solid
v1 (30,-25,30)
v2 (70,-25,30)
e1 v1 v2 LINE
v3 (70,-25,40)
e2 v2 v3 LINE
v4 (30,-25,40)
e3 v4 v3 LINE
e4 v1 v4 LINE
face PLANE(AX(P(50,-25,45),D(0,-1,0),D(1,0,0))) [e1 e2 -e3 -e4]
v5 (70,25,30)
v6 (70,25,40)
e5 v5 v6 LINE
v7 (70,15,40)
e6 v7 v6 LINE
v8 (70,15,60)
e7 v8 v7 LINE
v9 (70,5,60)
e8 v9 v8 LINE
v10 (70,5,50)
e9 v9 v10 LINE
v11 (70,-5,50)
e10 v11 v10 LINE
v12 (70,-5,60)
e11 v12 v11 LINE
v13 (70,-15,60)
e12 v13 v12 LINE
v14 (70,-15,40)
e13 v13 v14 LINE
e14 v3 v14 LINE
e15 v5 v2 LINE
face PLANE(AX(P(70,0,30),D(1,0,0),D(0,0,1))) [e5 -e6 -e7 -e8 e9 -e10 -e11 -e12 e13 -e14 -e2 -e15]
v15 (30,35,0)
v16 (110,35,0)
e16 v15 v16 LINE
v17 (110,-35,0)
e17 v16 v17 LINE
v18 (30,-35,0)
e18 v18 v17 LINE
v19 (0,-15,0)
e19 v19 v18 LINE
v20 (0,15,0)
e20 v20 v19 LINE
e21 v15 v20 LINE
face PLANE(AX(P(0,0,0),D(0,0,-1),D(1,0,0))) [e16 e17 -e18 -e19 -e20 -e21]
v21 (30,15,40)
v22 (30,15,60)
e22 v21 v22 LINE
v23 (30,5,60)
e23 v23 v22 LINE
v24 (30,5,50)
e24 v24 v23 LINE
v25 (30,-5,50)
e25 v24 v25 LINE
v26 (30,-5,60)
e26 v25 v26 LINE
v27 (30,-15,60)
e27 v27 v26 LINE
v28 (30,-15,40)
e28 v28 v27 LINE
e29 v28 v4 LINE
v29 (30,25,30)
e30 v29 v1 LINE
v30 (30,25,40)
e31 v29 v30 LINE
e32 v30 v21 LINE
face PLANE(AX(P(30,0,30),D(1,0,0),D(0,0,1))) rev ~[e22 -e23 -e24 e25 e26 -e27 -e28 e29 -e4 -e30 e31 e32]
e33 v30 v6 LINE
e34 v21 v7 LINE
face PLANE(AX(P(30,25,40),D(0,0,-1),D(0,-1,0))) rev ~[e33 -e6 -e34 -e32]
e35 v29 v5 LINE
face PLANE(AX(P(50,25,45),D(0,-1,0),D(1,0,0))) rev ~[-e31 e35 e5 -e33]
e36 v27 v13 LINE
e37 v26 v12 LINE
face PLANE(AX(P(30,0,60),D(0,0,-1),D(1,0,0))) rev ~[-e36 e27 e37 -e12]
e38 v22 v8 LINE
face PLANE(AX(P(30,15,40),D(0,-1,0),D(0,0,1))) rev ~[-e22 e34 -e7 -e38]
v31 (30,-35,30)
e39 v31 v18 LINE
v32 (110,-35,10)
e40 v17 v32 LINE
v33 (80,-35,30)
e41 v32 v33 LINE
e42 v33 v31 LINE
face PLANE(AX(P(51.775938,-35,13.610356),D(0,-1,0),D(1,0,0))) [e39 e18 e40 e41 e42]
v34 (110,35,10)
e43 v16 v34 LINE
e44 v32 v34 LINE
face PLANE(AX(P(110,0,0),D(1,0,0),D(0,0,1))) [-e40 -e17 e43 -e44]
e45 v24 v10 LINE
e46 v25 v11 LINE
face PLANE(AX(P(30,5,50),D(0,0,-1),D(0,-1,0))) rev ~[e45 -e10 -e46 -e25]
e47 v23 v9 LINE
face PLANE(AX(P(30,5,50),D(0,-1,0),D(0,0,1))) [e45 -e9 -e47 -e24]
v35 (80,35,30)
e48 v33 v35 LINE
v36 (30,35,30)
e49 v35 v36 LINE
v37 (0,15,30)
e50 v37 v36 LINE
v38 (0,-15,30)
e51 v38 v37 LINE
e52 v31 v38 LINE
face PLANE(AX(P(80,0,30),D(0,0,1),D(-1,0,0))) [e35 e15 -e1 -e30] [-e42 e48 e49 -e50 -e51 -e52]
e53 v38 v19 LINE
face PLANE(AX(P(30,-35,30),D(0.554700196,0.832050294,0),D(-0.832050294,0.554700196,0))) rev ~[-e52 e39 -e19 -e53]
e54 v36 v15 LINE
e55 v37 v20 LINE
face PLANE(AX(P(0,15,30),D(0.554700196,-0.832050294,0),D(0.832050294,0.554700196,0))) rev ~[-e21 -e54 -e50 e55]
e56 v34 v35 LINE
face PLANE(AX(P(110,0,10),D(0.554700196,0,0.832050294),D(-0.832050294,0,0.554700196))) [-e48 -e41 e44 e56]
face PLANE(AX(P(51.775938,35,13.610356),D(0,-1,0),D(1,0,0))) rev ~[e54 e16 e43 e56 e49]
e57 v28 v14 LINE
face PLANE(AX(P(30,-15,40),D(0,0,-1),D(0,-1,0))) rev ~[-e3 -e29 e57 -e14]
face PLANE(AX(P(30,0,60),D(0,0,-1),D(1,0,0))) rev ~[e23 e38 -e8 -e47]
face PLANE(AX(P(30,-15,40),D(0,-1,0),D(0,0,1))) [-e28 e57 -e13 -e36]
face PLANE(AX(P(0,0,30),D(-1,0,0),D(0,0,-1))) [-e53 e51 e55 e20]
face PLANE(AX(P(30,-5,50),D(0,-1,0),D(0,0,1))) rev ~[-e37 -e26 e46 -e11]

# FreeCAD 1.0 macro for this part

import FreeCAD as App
import Part
import Sketcher

doc = App.newDocument("Part")
params = doc.addObject("Spreadsheet::Sheet", "Params")
for row, (alias, value) in enumerate([
    ("sketch1_width", "110 mm"),
    ("sketch1_width2", "80 mm"),
    ("sketch1_height", "30 mm"),
    ("sketch1_height2", "10 mm"),
    ("pad1_length", "70 mm"),
    ("sketch2_width", "40 mm"),
    ("sketch2_height", "30 mm"),
    ("pad2_length", "50 mm"),
    ("sketch3_width", "30 mm"),
    ("sketch3_height", "20 mm"),
    ("sketch4_width", "10 mm"),
    ("sketch4_height", "20 mm"),
    ("sketch5_width", "10 mm"),
], start=1):
    params.set(f"A{row}", alias)
    params.set(f"B{row}", "=" + value)
    params.setAlias(f"B{row}", alias)

body = doc.addObject("PartDesign::Body", "Body")

# Sketch on XZ plane
sketch1 = body.newObject("Sketcher::SketchObject", "Sketch")
sketch1.AttachmentSupport = (doc.getObject("XZ_Plane"), [""])
sketch1.MapMode = "FlatFace"
sketch1.addGeometry([
    Part.LineSegment(App.Vector(0, 30, 0), App.Vector(0, 0, 0)),  # 0
    Part.LineSegment(App.Vector(0, 0, 0), App.Vector(110, 0, 0)),  # 1
    Part.LineSegment(App.Vector(110, 0, 0), App.Vector(110, 10, 0)),  # 2
    Part.LineSegment(App.Vector(110, 10, 0), App.Vector(80, 30, 0)),  # 3
    Part.LineSegment(App.Vector(80, 30, 0), App.Vector(0, 30, 0)),  # 4
], False)
sketch1.addConstraint([
    Sketcher.Constraint("Coincident", 0, 2, 1, 1),
    Sketcher.Constraint("Coincident", 1, 2, 2, 1),
    Sketcher.Constraint("Coincident", 2, 2, 3, 1),
    Sketcher.Constraint("Coincident", 3, 2, 4, 1),
    Sketcher.Constraint("Coincident", 4, 2, 0, 1),
    Sketcher.Constraint("Vertical", 0),
    Sketcher.Constraint("Horizontal", 1),
    Sketcher.Constraint("Vertical", 2),
    Sketcher.Constraint("Horizontal", 4),
    Sketcher.Constraint("Coincident", 0, 2, -1, 1),
    Sketcher.Constraint("DistanceX", 1, 1, 1, 2, 110.0),
    Sketcher.Constraint("DistanceX", 4, 2, 4, 1, 80.0),
    Sketcher.Constraint("DistanceY", 0, 2, 0, 1, 30.0),
    Sketcher.Constraint("DistanceY", 2, 1, 2, 2, 10.0),
])
sketch1.setExpression("Constraints[10]", "Params.sketch1_width")
sketch1.setExpression("Constraints[11]", "Params.sketch1_width2")
sketch1.setExpression("Constraints[12]", "Params.sketch1_height")
sketch1.setExpression("Constraints[13]", "Params.sketch1_height2")
pad1 = body.newObject("PartDesign::Pad", "Pad")
pad1.Profile = sketch1
pad1.setExpression("Length", "Params.pad1_length")
pad1.Midplane = True

# Sketch on XZ plane
sketch2 = body.newObject("Sketcher::SketchObject", "Sketch001")
sketch2.AttachmentSupport = (doc.getObject("XZ_Plane"), [""])
sketch2.MapMode = "FlatFace"
sketch2.addGeometry([
    Part.LineSegment(App.Vector(30, 60, 0), App.Vector(30, 30, 0)),
    Part.LineSegment(App.Vector(30, 30, 0), App.Vector(70, 30, 0)),
    Part.LineSegment(App.Vector(70, 30, 0), App.Vector(70, 60, 0)),
    Part.LineSegment(App.Vector(70, 60, 0), App.Vector(30, 60, 0)),
], False)
sketch2.addConstraint([
    Sketcher.Constraint("Coincident", 0, 2, 1, 1),
    Sketcher.Constraint("Coincident", 1, 2, 2, 1),
    Sketcher.Constraint("Coincident", 2, 2, 3, 1),
    Sketcher.Constraint("Coincident", 3, 2, 0, 1),
    Sketcher.Constraint("Vertical", 0),
    Sketcher.Constraint("Horizontal", 1),
    Sketcher.Constraint("Vertical", 2),
    Sketcher.Constraint("Horizontal", 3),
    Sketcher.Constraint("DistanceX", 1, 1, 1, 2, 40.0),
    Sketcher.Constraint("DistanceY", 0, 2, 0, 1, 30.0),
    Sketcher.Constraint("DistanceX", -1, 1, 0, 2, 30.0),
    Sketcher.Constraint("DistanceY", -1, 1, 0, 2, 30.0),
])
sketch2.setExpression("Constraints[8]", "Params.sketch2_width")
sketch2.setExpression("Constraints[9]", "Params.sketch2_height")
pad2 = body.newObject("PartDesign::Pad", "Pad001")
pad2.Profile = sketch2
pad2.setExpression("Length", "Params.pad2_length")
pad2.Midplane = True

# Sketch on XY plane
sketch3 = body.newObject("Sketcher::SketchObject", "Sketch002")
sketch3.AttachmentSupport = (doc.getObject("XY_Plane"), [""])
sketch3.MapMode = "FlatFace"
sketch3.AttachmentOffset = App.Placement(App.Vector(0, 0, 30), App.Rotation())
sketch3.addGeometry([
    Part.LineSegment(App.Vector(0, -35, 0), App.Vector(30, -35, 0)),  # 0
    Part.LineSegment(App.Vector(30, -35, 0), App.Vector(0, -15, 0)),  # 1
    Part.LineSegment(App.Vector(0, -15, 0), App.Vector(0, -35, 0)),  # 2
    Part.LineSegment(App.Vector(0, 15, 0), App.Vector(30, 35, 0)),  # 3
    Part.LineSegment(App.Vector(30, 35, 0), App.Vector(0, 35, 0)),  # 4
    Part.LineSegment(App.Vector(0, 35, 0), App.Vector(0, 15, 0)),  # 5
], False)
sketch3.addConstraint([
    Sketcher.Constraint("Coincident", 0, 2, 1, 1),
    Sketcher.Constraint("Coincident", 1, 2, 2, 1),
    Sketcher.Constraint("Coincident", 2, 2, 0, 1),
    Sketcher.Constraint("Coincident", 3, 2, 4, 1),
    Sketcher.Constraint("Coincident", 4, 2, 5, 1),
    Sketcher.Constraint("Coincident", 5, 2, 3, 1),
    Sketcher.Constraint("Horizontal", 0),
    Sketcher.Constraint("Vertical", 2),
    Sketcher.Constraint("Horizontal", 4),
    Sketcher.Constraint("Vertical", 5),
    Sketcher.Constraint("Symmetric", 2, 2, 4, 2, -1, 1),
    Sketcher.Constraint("Symmetric", 1, 2, 5, 2, -1),
    Sketcher.Constraint("Vertical", 0, 2, 3, 2),
    Sketcher.Constraint("DistanceX", 0, 1, 0, 2, 30.0),
    Sketcher.Constraint("DistanceY", 2, 2, 2, 1, 20.0),
    Sketcher.Constraint("DistanceY", 0, 2, -1, 1, 35.0),
])
sketch3.setExpression("Constraints[13]", "Params.sketch3_width")
sketch3.setExpression("Constraints[14]", "Params.sketch3_height")
pocket1 = body.newObject("PartDesign::Pocket", "Pocket")
pocket1.Profile = sketch3
pocket1.Type = "ThroughAll"

# Sketch on YZ plane
sketch4 = body.newObject("Sketcher::SketchObject", "Sketch003")
sketch4.AttachmentSupport = (doc.getObject("YZ_Plane"), [""])
sketch4.MapMode = "FlatFace"
sketch4.AttachmentOffset = App.Placement(App.Vector(0, 0, 30), App.Rotation())
sketch4.addGeometry([
    Part.LineSegment(App.Vector(25, 60, 0), App.Vector(25, 40, 0)),  # 0
    Part.LineSegment(App.Vector(25, 40, 0), App.Vector(15, 40, 0)),  # 1
    Part.LineSegment(App.Vector(15, 40, 0), App.Vector(15, 60, 0)),  # 2
    Part.LineSegment(App.Vector(15, 60, 0), App.Vector(25, 60, 0)),  # 3
    Part.LineSegment(App.Vector(-15, 60, 0), App.Vector(-15, 40, 0)),  # 4
    Part.LineSegment(App.Vector(-15, 40, 0), App.Vector(-25, 40, 0)),  # 5
    Part.LineSegment(App.Vector(-25, 40, 0), App.Vector(-25, 60, 0)),  # 6
    Part.LineSegment(App.Vector(-25, 60, 0), App.Vector(-15, 60, 0)),  # 7
], False)
sketch4.addConstraint([
    Sketcher.Constraint("Coincident", 0, 2, 1, 1),
    Sketcher.Constraint("Coincident", 1, 2, 2, 1),
    Sketcher.Constraint("Coincident", 2, 2, 3, 1),
    Sketcher.Constraint("Coincident", 3, 2, 0, 1),
    Sketcher.Constraint("Coincident", 4, 2, 5, 1),
    Sketcher.Constraint("Coincident", 5, 2, 6, 1),
    Sketcher.Constraint("Coincident", 6, 2, 7, 1),
    Sketcher.Constraint("Coincident", 7, 2, 4, 1),
    Sketcher.Constraint("Vertical", 0),
    Sketcher.Constraint("Horizontal", 1),
    Sketcher.Constraint("Vertical", 2),
    Sketcher.Constraint("Horizontal", 3),
    Sketcher.Constraint("Vertical", 4),
    Sketcher.Constraint("Horizontal", 5),
    Sketcher.Constraint("Vertical", 6),
    Sketcher.Constraint("Horizontal", 7),
    Sketcher.Constraint("Symmetric", 1, 2, 4, 2, -2),
    Sketcher.Constraint("Symmetric", 3, 2, 6, 2, -2),
    Sketcher.Constraint("DistanceX", 1, 2, 1, 1, 10.0),
    Sketcher.Constraint("DistanceY", 0, 2, 0, 1, 20.0),
    Sketcher.Constraint("DistanceX", -1, 1, 0, 2, 25.0),
    Sketcher.Constraint("DistanceY", -1, 1, 0, 2, 40.0),
])
sketch4.setExpression("Constraints[18]", "Params.sketch4_width")
sketch4.setExpression("Constraints[19]", "Params.sketch4_height")
pocket2 = body.newObject("PartDesign::Pocket", "Pocket001")
pocket2.Profile = sketch4
pocket2.Type = "ThroughAll"
pocket2.Reversed = True

# Sketch on YZ plane
sketch5 = body.newObject("Sketcher::SketchObject", "Sketch004")
sketch5.AttachmentSupport = (doc.getObject("YZ_Plane"), [""])
sketch5.MapMode = "FlatFace"
sketch5.AttachmentOffset = App.Placement(App.Vector(0, 0, 30), App.Rotation())
sketch5.addGeometry([
    Part.LineSegment(App.Vector(5, 60, 0), App.Vector(5, 50, 0)),
    Part.LineSegment(App.Vector(5, 50, 0), App.Vector(-5, 50, 0)),
    Part.LineSegment(App.Vector(-5, 50, 0), App.Vector(-5, 60, 0)),
    Part.LineSegment(App.Vector(-5, 60, 0), App.Vector(5, 60, 0)),
], False)
sketch5.addConstraint([
    Sketcher.Constraint("Coincident", 0, 2, 1, 1),
    Sketcher.Constraint("Coincident", 1, 2, 2, 1),
    Sketcher.Constraint("Coincident", 2, 2, 3, 1),
    Sketcher.Constraint("Coincident", 3, 2, 0, 1),
    Sketcher.Constraint("Vertical", 0),
    Sketcher.Constraint("Horizontal", 1),
    Sketcher.Constraint("Vertical", 2),
    Sketcher.Constraint("Horizontal", 3),
    Sketcher.Constraint("Equal", 3, 0),
    Sketcher.Constraint("DistanceX", 1, 2, 1, 1, 10.0),
    Sketcher.Constraint("DistanceX", -1, 1, 0, 2, 5.0),
    Sketcher.Constraint("DistanceY", -1, 1, 0, 2, 50.0),
])
sketch5.setExpression("Constraints[9]", "Params.sketch5_width")
pocket3 = body.newObject("PartDesign::Pocket", "Pocket002")
pocket3.Profile = sketch5
pocket3.Type = "ThroughAll"
pocket3.Reversed = True

doc.recompute()
